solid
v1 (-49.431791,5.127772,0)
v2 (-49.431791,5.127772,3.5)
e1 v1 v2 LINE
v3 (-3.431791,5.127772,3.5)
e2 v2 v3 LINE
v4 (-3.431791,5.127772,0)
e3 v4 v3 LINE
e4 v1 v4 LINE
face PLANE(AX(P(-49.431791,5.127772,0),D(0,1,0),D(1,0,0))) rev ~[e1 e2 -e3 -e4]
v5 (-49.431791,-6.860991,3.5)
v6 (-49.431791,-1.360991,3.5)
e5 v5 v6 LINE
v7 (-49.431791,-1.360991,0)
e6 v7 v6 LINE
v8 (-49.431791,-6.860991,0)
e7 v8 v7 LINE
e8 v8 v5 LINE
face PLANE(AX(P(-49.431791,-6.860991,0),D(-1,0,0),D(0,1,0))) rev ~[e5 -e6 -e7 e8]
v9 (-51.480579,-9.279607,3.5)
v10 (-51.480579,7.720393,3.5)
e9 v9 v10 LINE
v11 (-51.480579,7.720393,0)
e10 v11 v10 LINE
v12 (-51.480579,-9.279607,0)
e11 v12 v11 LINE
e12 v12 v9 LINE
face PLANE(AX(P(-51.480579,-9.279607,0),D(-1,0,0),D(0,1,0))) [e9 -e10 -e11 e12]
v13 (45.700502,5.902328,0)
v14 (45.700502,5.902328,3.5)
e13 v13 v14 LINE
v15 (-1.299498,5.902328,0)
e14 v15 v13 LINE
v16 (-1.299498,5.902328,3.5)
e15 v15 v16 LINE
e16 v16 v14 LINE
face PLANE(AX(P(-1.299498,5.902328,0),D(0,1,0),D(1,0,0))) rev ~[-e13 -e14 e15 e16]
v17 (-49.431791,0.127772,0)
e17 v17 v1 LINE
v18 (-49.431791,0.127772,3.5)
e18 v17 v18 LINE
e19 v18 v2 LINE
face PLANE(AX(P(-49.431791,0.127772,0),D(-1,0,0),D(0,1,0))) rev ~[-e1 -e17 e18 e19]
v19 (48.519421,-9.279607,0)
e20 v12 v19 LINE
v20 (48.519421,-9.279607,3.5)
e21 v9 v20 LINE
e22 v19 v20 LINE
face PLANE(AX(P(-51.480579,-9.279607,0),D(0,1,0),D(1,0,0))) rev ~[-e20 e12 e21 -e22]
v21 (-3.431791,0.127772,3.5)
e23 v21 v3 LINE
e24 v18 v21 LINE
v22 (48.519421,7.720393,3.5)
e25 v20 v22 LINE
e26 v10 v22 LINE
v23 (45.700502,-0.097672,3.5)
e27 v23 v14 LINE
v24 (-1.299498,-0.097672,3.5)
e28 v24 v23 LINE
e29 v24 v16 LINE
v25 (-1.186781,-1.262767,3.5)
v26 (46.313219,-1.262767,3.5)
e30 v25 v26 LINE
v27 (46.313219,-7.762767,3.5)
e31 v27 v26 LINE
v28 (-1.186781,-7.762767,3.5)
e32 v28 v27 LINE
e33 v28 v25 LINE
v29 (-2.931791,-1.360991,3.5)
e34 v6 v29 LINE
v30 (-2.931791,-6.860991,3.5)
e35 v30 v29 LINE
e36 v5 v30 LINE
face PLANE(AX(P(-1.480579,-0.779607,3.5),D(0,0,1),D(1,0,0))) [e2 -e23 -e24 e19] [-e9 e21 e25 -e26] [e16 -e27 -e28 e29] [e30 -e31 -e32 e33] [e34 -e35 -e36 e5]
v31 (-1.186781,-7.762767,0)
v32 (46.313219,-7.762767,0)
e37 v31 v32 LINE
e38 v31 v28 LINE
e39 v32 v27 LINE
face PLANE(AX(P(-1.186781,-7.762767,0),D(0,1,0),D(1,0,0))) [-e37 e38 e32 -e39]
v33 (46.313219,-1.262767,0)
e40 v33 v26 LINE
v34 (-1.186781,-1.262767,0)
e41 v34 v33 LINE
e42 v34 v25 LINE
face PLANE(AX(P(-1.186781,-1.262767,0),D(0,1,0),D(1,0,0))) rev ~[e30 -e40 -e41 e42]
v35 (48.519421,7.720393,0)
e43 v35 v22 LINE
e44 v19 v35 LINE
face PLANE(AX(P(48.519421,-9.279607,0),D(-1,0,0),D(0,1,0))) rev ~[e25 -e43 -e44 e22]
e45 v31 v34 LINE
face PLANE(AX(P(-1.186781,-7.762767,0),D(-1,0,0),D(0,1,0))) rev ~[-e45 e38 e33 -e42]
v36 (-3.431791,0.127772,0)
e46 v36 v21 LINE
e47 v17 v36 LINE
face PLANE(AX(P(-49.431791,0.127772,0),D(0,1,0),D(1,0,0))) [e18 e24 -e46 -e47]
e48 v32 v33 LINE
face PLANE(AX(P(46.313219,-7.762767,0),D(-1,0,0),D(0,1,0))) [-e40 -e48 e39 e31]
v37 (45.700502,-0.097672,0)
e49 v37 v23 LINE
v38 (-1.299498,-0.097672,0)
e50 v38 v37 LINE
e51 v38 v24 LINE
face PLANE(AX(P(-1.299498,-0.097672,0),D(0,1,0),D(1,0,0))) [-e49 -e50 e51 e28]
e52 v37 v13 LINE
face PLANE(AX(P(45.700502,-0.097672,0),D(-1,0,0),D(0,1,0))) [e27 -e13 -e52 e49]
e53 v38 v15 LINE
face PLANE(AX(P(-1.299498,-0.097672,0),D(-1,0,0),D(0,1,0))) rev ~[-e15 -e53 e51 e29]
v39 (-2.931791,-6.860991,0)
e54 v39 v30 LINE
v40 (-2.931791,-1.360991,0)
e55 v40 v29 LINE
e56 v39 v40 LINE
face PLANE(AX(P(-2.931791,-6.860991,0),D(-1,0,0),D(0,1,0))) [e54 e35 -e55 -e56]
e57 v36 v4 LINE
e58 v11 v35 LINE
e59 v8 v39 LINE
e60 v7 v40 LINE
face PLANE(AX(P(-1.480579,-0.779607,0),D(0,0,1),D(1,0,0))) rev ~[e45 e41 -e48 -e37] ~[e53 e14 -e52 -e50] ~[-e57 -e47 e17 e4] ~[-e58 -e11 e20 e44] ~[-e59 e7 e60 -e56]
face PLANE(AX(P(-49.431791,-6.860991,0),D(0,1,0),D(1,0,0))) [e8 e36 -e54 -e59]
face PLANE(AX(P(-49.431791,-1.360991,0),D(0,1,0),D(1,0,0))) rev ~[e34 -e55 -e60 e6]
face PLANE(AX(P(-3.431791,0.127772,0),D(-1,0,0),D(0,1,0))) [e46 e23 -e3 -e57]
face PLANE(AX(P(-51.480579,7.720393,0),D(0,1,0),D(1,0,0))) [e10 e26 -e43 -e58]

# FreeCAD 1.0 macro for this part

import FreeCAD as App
import Part
import Sketcher
from FreeCAD import Vector


def add_polygon(sketch, points):
    """Adds a closed chain of lines whose ends are joined by coincident constraints."""
    first, n = sketch.GeometryCount, len(points)
    for a, b in zip(points, points[1:] + points[:1]):
        sketch.addGeometry(Part.LineSegment(App.Vector(*a, 0), App.Vector(*b, 0)), False)
    for i in range(n):
        sketch.addConstraint(Sketcher.Constraint("Coincident", first + i, 2, first + (i + 1) % n, 1))

doc = App.newDocument("Part")
params = doc.addObject("Spreadsheet::Sheet", "Params")
for row, (alias, value) in enumerate([
    ("sketch1_width", "100 mm"),
    ("sketch1_width2", "46 mm"),
    ("sketch1_width3", "47 mm"),
    ("sketch1_height", "17 mm"),
    ("sketch1_height2", "5 mm"),
    ("pad1_length", "3.5 mm"),
], start=1):
    params.set(f"A{row}", alias)
    params.set(f"B{row}", "=" + value)
    params.setAlias(f"B{row}", alias)

body = doc.addObject("PartDesign::Body", "Body")

# Sketch on XY plane
sketch1 = body.newObject("Sketcher::SketchObject", "Sketch")
sketch1.AttachmentSupport = (doc.getObject("XY_Plane"), [""])
sketch1.MapMode = "FlatFace"
add_polygon(sketch1, [(-51, 8), (-51, -9), (49, -9), (49, 8)])  # lines 0-3
add_polygon(sketch1, [(-3, -7), (-49, -7), (-49, -1), (-3, -1)])  # lines 4-7
add_polygon(sketch1, [(46, -8), (-1, -8), (-1, -1), (46, -1)])  # lines 8-11
add_polygon(sketch1, [(-3, 0), (-49, 0), (-49, 5), (-3, 5)])  # lines 12-15
add_polygon(sketch1, [(46, 0), (-1, 0), (-1, 6), (46, 6)])  # lines 16-19
sketch1.addConstraint([
    Sketcher.Constraint("Vertical", 0),
    Sketcher.Constraint("Horizontal", 1),
    Sketcher.Constraint("Vertical", 2),
    Sketcher.Constraint("Horizontal", 3),
    Sketcher.Constraint("Horizontal", 4),
    Sketcher.Constraint("Vertical", 5),
    Sketcher.Constraint("Horizontal", 6),
    Sketcher.Constraint("Vertical", 7),
    Sketcher.Constraint("Horizontal", 8),
    Sketcher.Constraint("Vertical", 9),
    Sketcher.Constraint("Horizontal", 10),
    Sketcher.Constraint("Vertical", 11),
    Sketcher.Constraint("Horizontal", 12),
    Sketcher.Constraint("Vertical", 13),
    Sketcher.Constraint("Horizontal", 14),
    Sketcher.Constraint("Vertical", 15),
    Sketcher.Constraint("Horizontal", 16),
    Sketcher.Constraint("Vertical", 17),
    Sketcher.Constraint("Horizontal", 18),
    Sketcher.Constraint("Vertical", 19),
    Sketcher.Constraint("Vertical", 5, 2, 12, 2),
    Sketcher.Constraint("DistanceX", 1, 1, 1, 2, 100.0),
    Sketcher.Constraint("DistanceX", 12, 2, 12, 1, 46.0),
    Sketcher.Constraint("DistanceX", 16, 2, 16, 1, 47.0),
    Sketcher.Constraint("DistanceY", 0, 2, 0, 1, 17.0),
    Sketcher.Constraint("DistanceY", 13, 1, 13, 2, 5.0),
    Sketcher.Constraint("DistanceY", 17, 1, 17, 2, 6.0),
    Sketcher.Constraint("DistanceX", 4, 2, 4, 1, 46.5),
    Sketcher.Constraint("DistanceX", 8, 2, 8, 1, 47.5),
    Sketcher.Constraint("DistanceY", 5, 1, 5, 2, 5.5),
    Sketcher.Constraint("DistanceY", 9, 1, 9, 2, 6.5),
    Sketcher.Constraint("DistanceX", 0, 2, -1, 1, 51.480579),
    Sketcher.Constraint("DistanceX", 4, 2, -1, 1, 49.431791),
    Sketcher.Constraint("DistanceY", 4, 2, -1, 1, 6.860991),
    Sketcher.Constraint("DistanceX", 8, 2, -1, 1, 1.186781),
    Sketcher.Constraint("DistanceY", 16, 2, -1, 1, 0.097672),
    Sketcher.Constraint("DistanceY", 1, 2, 8, 2, 1.51684),
    Sketcher.Constraint("DistanceY", 12, 2, 3, 2, 7.592621),
    Sketcher.Constraint("DistanceX", 18, 2, 2, 2, 2.818919),
    Sketcher.Constraint("DistanceY", 0, 2, -1, 1, 9.279607),
])
sketch1.setExpression("Constraints[41]", "Params.sketch1_width")
sketch1.setExpression("Constraints[42]", "Params.sketch1_width2")
sketch1.setExpression("Constraints[43]", "Params.sketch1_width3")
sketch1.setExpression("Constraints[44]", "Params.sketch1_height")
sketch1.setExpression("Constraints[45]", "Params.sketch1_height2")
pad1 = body.newObject("PartDesign::Pad", "Pad")
pad1.Profile = sketch1
pad1.setExpression("Length", "Params.pad1_length")

doc.recompute()
